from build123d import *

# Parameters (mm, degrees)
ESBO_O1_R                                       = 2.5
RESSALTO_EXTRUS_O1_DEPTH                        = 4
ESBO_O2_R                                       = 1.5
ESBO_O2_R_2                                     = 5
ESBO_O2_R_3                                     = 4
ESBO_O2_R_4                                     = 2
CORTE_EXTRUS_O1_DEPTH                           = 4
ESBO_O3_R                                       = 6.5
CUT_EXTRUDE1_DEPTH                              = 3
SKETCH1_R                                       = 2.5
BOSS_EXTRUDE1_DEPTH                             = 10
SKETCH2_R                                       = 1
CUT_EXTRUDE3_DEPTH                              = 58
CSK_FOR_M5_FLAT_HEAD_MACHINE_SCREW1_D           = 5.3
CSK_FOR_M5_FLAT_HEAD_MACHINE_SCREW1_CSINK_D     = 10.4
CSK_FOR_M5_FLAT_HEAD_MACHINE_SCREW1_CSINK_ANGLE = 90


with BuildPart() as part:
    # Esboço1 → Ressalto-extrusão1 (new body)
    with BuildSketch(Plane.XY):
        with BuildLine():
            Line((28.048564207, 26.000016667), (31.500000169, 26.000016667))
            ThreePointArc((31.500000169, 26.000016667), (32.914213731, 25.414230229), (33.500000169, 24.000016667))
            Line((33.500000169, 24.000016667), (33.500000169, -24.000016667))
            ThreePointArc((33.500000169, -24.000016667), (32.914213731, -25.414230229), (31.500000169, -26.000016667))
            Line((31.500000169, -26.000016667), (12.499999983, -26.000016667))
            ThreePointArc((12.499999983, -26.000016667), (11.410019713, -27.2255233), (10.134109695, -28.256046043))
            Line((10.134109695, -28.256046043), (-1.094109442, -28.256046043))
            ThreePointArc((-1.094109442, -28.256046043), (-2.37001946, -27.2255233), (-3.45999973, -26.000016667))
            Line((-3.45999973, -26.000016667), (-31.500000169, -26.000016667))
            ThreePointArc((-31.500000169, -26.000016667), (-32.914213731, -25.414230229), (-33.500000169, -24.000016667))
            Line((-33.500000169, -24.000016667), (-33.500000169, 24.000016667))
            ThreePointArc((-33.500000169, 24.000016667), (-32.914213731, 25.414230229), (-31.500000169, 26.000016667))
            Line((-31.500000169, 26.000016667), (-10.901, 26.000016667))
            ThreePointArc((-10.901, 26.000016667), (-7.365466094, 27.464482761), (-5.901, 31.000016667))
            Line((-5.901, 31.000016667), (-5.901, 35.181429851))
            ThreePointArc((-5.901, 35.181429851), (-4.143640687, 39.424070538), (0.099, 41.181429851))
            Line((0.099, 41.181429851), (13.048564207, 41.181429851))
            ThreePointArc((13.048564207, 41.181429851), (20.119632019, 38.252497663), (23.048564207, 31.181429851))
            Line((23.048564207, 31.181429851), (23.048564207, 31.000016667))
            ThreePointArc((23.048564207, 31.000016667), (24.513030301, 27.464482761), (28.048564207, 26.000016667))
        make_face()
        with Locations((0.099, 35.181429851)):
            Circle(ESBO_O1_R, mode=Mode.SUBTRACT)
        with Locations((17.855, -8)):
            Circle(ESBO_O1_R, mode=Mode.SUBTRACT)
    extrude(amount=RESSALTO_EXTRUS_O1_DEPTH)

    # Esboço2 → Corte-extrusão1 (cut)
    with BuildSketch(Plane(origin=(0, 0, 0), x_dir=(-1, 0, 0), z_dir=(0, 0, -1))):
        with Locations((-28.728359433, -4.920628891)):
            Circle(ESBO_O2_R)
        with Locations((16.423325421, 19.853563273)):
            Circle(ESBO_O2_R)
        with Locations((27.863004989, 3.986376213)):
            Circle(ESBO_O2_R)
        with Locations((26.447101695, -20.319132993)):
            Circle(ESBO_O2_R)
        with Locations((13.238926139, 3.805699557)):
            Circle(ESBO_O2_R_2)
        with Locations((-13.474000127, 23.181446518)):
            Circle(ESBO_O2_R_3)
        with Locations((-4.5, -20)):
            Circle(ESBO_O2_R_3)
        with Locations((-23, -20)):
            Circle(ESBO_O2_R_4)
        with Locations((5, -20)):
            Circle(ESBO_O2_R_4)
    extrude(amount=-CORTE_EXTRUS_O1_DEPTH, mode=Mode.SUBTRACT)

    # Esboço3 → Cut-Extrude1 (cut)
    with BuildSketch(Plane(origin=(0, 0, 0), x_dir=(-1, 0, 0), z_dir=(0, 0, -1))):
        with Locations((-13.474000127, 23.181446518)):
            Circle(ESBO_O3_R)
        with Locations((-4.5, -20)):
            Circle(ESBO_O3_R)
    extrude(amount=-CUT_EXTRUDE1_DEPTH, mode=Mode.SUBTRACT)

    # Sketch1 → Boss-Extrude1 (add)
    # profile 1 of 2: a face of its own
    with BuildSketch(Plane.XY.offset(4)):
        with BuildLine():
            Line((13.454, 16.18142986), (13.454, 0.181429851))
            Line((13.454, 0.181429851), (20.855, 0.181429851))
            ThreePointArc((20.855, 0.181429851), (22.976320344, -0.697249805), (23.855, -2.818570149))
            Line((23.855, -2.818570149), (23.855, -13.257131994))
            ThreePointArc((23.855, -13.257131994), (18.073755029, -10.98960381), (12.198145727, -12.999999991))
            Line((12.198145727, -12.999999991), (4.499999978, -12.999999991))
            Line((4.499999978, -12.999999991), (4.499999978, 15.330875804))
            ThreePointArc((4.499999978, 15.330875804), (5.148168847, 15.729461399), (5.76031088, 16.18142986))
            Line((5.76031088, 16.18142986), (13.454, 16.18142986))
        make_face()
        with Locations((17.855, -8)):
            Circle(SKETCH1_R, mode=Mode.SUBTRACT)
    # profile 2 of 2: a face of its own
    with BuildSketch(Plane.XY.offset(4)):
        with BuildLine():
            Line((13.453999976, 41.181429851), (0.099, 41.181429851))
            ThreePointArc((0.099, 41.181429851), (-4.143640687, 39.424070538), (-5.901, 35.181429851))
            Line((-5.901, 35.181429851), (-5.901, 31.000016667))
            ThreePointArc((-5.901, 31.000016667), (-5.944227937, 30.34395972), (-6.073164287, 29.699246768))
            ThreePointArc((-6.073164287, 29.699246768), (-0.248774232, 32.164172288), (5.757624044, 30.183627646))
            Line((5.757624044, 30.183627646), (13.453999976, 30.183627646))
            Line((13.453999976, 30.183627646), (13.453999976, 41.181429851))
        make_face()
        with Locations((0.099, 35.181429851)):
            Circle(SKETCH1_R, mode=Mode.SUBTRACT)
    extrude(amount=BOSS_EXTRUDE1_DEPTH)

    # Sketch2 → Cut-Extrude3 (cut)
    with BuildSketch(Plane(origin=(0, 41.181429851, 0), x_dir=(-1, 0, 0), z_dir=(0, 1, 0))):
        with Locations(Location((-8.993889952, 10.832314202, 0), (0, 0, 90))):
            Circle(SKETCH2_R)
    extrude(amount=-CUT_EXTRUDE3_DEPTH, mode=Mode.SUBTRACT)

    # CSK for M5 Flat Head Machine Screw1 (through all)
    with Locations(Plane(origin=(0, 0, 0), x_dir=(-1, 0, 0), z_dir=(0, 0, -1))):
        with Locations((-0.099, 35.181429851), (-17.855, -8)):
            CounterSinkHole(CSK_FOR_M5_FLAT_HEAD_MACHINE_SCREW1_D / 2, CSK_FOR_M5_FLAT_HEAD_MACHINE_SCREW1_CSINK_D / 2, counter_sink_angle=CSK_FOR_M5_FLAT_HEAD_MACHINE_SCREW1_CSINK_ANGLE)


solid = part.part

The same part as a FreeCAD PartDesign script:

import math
import FreeCAD as App
import Part
import Sketcher

V = App.Vector
Q = App.Units.Quantity

doc = App.newDocument("Part")
params = doc.addObject("Spreadsheet::Sheet", "Params")
for row, (alias, value) in enumerate([
    ("sketch1_diameter", "5 mm"),
    ("sketch1_radius", "5 mm"),
    ("sketch1_radius2", "10 mm"),
    ("sketch1_radius3", "6 mm"),
    ("sketch1_radius4", "2 mm"),
    ("pad1_length", "4 mm"),
    ("sketch2_diameter", "3 mm"),
    ("sketch2_diameter2", "10 mm"),
    ("sketch2_diameter3", "8 mm"),
    ("sketch2_diameter4", "4 mm"),
    ("pocket1_length", "4 mm"),
    ("sketch3_diameter", "13 mm"),
    ("pocket2_length", "3 mm"),
    ("sketch4_diameter", "5 mm"),
    ("sketch4_radius", "3 mm"),
    ("sketch4_radius2", "6 mm"),
    ("sketch4_radius3", "5 mm"),
    ("sketch4_height", "16 mm"),
    ("pad2_length", "10 mm"),
    ("sketch5_diameter", "2 mm"),
    ("pocket3_length", "58 mm"),
    ("sketch6_diameter", "5.3 mm"),
    ("hole_diameter", "5.3 mm"),
    ("hole_csink_diameter", "10.4 mm"),
], start=1):
    params.set(f"A{row}", alias)
    params.set(f"B{row}", "=" + value)
    params.setAlias(f"B{row}", alias)

body = doc.addObject("PartDesign::Body", "Body")

sketch1 = doc.addObject("Sketcher::SketchObject", "Sketch")
body.addObject(sketch1)
sketch1.AttachmentSupport = (doc.XY_Plane, [""])
sketch1.MapMode = "FlatFace"
sketch1.addGeometry(Part.LineSegment(V(31.5, 26.000017, 0), V(28.048564, 26.000017, 0)), False)
sketch1.addGeometry(Part.ArcOfCircle(Part.Circle(V(28.048564, 31.000017, 0), V(0, 0, 1), 5), math.radians(180), math.radians(270)), False)
sketch1.addGeometry(Part.LineSegment(V(23.048564, 31.000017, 0), V(23.048564, 31.18143, 0)), False)
sketch1.addGeometry(Part.ArcOfCircle(Part.Circle(V(13.048564, 31.18143, 0), V(0, 0, 1), 10), math.radians(0), math.radians(90)), False)
sketch1.addGeometry(Part.LineSegment(V(13.048564, 41.18143, 0), V(0.099, 41.18143, 0)), False)
sketch1.addGeometry(Part.ArcOfCircle(Part.Circle(V(0.099, 35.18143, 0), V(0, 0, 1), 6), math.radians(90), math.radians(180)), False)
sketch1.addGeometry(Part.LineSegment(V(-5.901, 35.18143, 0), V(-5.901, 31.000017, 0)), False)
sketch1.addGeometry(Part.ArcOfCircle(Part.Circle(V(-10.901, 31.000017, 0), V(0, 0, 1), 5), math.radians(-90), math.radians(0)), False)
sketch1.addGeometry(Part.LineSegment(V(-10.901, 26.000017, 0), V(-31.5, 26.000017, 0)), False)
sketch1.addGeometry(Part.ArcOfCircle(Part.Circle(V(-31.5, 24.000017, 0), V(0, 0, 1), 2), math.radians(90), math.radians(180)), False)
sketch1.addGeometry(Part.LineSegment(V(-33.5, 24.000017, 0), V(-33.5, -24.000017, 0)), False)
sketch1.addGeometry(Part.ArcOfCircle(Part.Circle(V(-31.5, -24.000017, 0), V(0, 0, 1), 2), math.radians(-180), math.radians(-90)), False)
sketch1.addGeometry(Part.LineSegment(V(-31.5, -26.000017, 0), V(-3.46, -26.000017, 0)), False)
sketch1.addGeometry(Part.ArcOfCircle(Part.Circle(V(4.52, -19.999983, 0), V(0, 0, 1), 9.984027), math.radians(-143.061084), math.radians(-124.21564)), False)
sketch1.addGeometry(Part.LineSegment(V(-1.094109, -28.256046, 0), V(10.13411, -28.256046, 0)), False)
sketch1.addGeometry(Part.ArcOfCircle(Part.Circle(V(4.52, -19.999983, 0), V(0, 0, 1), 9.984027), math.radians(-55.78436), math.radians(-36.938916)), False)
sketch1.addGeometry(Part.LineSegment(V(12.5, -26.000017, 0), V(31.5, -26.000017, 0)), False)
sketch1.addGeometry(Part.ArcOfCircle(Part.Circle(V(31.5, -24.000017, 0), V(0, 0, 1), 2), math.radians(-90), math.radians(0)), False)
sketch1.addGeometry(Part.LineSegment(V(33.5, -24.000017, 0), V(33.5, 24.000017, 0)), False)
sketch1.addGeometry(Part.ArcOfCircle(Part.Circle(V(31.5, 24.000017, 0), V(0, 0, 1), 2), math.radians(0), math.radians(90)), False)
sketch1.addGeometry(Part.Circle(V(17.855, -8, 0), V(0, 0, 1), 2.5), False)
sketch1.addGeometry(Part.Circle(V(0.099, 35.18143, 0), V(0, 0, 1), 2.5), False)
sketch1.addConstraint(Sketcher.Constraint("Tangent", 0, 2, 1, 2))
sketch1.addConstraint(Sketcher.Constraint("Tangent", 1, 1, 2, 1))
sketch1.addConstraint(Sketcher.Constraint("Tangent", 2, 2, 3, 1))
sketch1.addConstraint(Sketcher.Constraint("Tangent", 3, 2, 4, 1))
sketch1.addConstraint(Sketcher.Constraint("Tangent", 4, 2, 5, 1))
sketch1.addConstraint(Sketcher.Constraint("Tangent", 5, 2, 6, 1))
sketch1.addConstraint(Sketcher.Constraint("Tangent", 6, 2, 7, 2))
sketch1.addConstraint(Sketcher.Constraint("Tangent", 7, 1, 8, 1))
sketch1.addConstraint(Sketcher.Constraint("Tangent", 8, 2, 9, 1))
sketch1.addConstraint(Sketcher.Constraint("Tangent", 9, 2, 10, 1))
sketch1.addConstraint(Sketcher.Constraint("Tangent", 10, 2, 11, 1))
sketch1.addConstraint(Sketcher.Constraint("Tangent", 11, 2, 12, 1))
sketch1.addConstraint(Sketcher.Constraint("Coincident", 12, 2, 13, 1))
sketch1.addConstraint(Sketcher.Constraint("Coincident", 13, 2, 14, 1))
sketch1.addConstraint(Sketcher.Constraint("Coincident", 14, 2, 15, 1))
sketch1.addConstraint(Sketcher.Constraint("Coincident", 15, 2, 16, 1))
sketch1.addConstraint(Sketcher.Constraint("Tangent", 16, 2, 17, 1))
sketch1.addConstraint(Sketcher.Constraint("Tangent", 17, 2, 18, 1))
sketch1.addConstraint(Sketcher.Constraint("Tangent", 18, 2, 19, 1))
sketch1.addConstraint(Sketcher.Constraint("Tangent", 19, 2, 0, 1))
sketch1.addConstraint(Sketcher.Constraint("Horizontal", 0))
sketch1.addConstraint(Sketcher.Constraint("Vertical", 2))
sketch1.addConstraint(Sketcher.Constraint("Horizontal", 4))
sketch1.addConstraint(Sketcher.Constraint("Vertical", 6))
sketch1.addConstraint(Sketcher.Constraint("Horizontal", 8))
sketch1.addConstraint(Sketcher.Constraint("Vertical", 10))
sketch1.addConstraint(Sketcher.Constraint("Horizontal", 12))
sketch1.addConstraint(Sketcher.Constraint("Horizontal", 14))
sketch1.addConstraint(Sketcher.Constraint("Horizontal", 16))
sketch1.addConstraint(Sketcher.Constraint("Vertical", 18))
sketch1.addConstraint(Sketcher.Constraint("Coincident", 15, 3, 13, 3))
sketch1.addConstraint(Sketcher.Constraint("Coincident", 21, 3, 5, 3))
sketch1.addConstraint(Sketcher.Constraint("Equal", 1, 7))
sketch1.addConstraint(Sketcher.Constraint("Equal", 9, 11))
sketch1.addConstraint(Sketcher.Constraint("Equal", 13, 15))
sketch1.addConstraint(Sketcher.Constraint("Equal", 11, 17))
sketch1.addConstraint(Sketcher.Constraint("Equal", 17, 19))
sketch1.addConstraint(Sketcher.Constraint("Equal", 20, 21))
sketch1.addConstraint(Sketcher.Constraint("Symmetric", 9, 3, 17, 3, -1, 1))
sketch1.addConstraint(Sketcher.Constraint("Horizontal", 1, 3, 7, 3))
sketch1.addConstraint(Sketcher.Constraint("Horizontal", 11, 3, 17, 3))
sketch1.addConstraint(Sketcher.Constraint("Diameter", 20, Q("5 mm")))
sketch1.addConstraint(Sketcher.Constraint("Radius", 1, Q("5 mm")))
sketch1.addConstraint(Sketcher.Constraint("Radius", 3, Q("10 mm")))
sketch1.addConstraint(Sketcher.Constraint("Radius", 5, Q("6 mm")))
sketch1.addConstraint(Sketcher.Constraint("Radius", 9, Q("2 mm")))
sketch1.addConstraint(Sketcher.Constraint("DistanceX", 16, 1, 16, 2, Q("19 mm")))
sketch1.addConstraint(Sketcher.Constraint("DistanceY", 20, 3, -1, 1, Q("8 mm")))
sketch1.addConstraint(Sketcher.Constraint("DistanceY", 13, 3, 7, 3, Q("51 mm")))
sketch1.addConstraint(Sketcher.Constraint("DistanceX", 11, 3, 17, 3, Q("63 mm")))
sketch1.addConstraint(Sketcher.Constraint("DistanceX", 12, 1, 12, 2, Q("28.04 mm")))
sketch1.addConstraint(Sketcher.Constraint("DistanceX", 8, 2, 8, 1, Q("20.599 mm")))
sketch1.addConstraint(Sketcher.Constraint("DistanceX", -1, 1, 20, 3, Q("17.855 mm")))
sketch1.addConstraint(Sketcher.Constraint("Radius", 13, Q("9.984027 mm")))
sketch1.addConstraint(Sketcher.Constraint("DistanceX", 14, 1, 14, 2, Q("11.228219 mm")))
sketch1.addConstraint(Sketcher.Constraint("DistanceX", 0, 2, 0, 1, Q("3.451436 mm")))
sketch1.addConstraint(Sketcher.Constraint("DistanceY", 2, 1, 2, 2, Q("0.181413 mm")))
sketch1.setExpression("Constraints[41]", "Params.sketch1_diameter")
sketch1.setExpression("Constraints[42]", "Params.sketch1_radius")
sketch1.setExpression("Constraints[43]", "Params.sketch1_radius2")
sketch1.setExpression("Constraints[44]", "Params.sketch1_radius3")
sketch1.setExpression("Constraints[45]", "Params.sketch1_radius4")
pad1 = doc.addObject("PartDesign::Pad", "Pad")
body.addObject(pad1)
pad1.Profile = sketch1
pad1.setExpression("Length", "Params.pad1_length")

sketch2 = doc.addObject("Sketcher::SketchObject", "Sketch001")
body.addObject(sketch2)
sketch2.AttachmentSupport = (doc.XY_Plane, [""])
sketch2.MapMode = "FlatFace"
sketch2.addGeometry(Part.Circle(V(28.728359, -4.920629, 0), V(0, 0, 1), 1.5), False)
sketch2.addGeometry(Part.Circle(V(-16.423325, 19.853563, 0), V(0, 0, 1), 1.5), False)
sketch2.addGeometry(Part.Circle(V(-27.863005, 3.986376, 0), V(0, 0, 1), 1.5), False)
sketch2.addGeometry(Part.Circle(V(-26.447102, -20.319133, 0), V(0, 0, 1), 1.5), False)
sketch2.addGeometry(Part.Circle(V(-13.238926, 3.8057, 0), V(0, 0, 1), 5), False)
sketch2.addGeometry(Part.Circle(V(13.474, 23.181447, 0), V(0, 0, 1), 4), False)
sketch2.addGeometry(Part.Circle(V(4.5, -20, 0), V(0, 0, 1), 4), False)
sketch2.addGeometry(Part.Circle(V(23, -20, 0), V(0, 0, 1), 2), False)
sketch2.addGeometry(Part.Circle(V(-5, -20, 0), V(0, 0, 1), 2), False)
sketch2.addConstraint(Sketcher.Constraint("Equal", 0, 1))
sketch2.addConstraint(Sketcher.Constraint("Equal", 1, 2))
sketch2.addConstraint(Sketcher.Constraint("Equal", 2, 3))
sketch2.addConstraint(Sketcher.Constraint("Equal", 5, 6))
sketch2.addConstraint(Sketcher.Constraint("Equal", 7, 8))
sketch2.addConstraint(Sketcher.Constraint("Horizontal", 6, 3, 7, 3))
sketch2.addConstraint(Sketcher.Constraint("Horizontal", 7, 3, 8, 3))
sketch2.addConstraint(Sketcher.Constraint("Diameter", 0, Q("3 mm")))
sketch2.addConstraint(Sketcher.Constraint("Diameter", 4, Q("10 mm")))
sketch2.addConstraint(Sketcher.Constraint("Diameter", 5, Q("8 mm")))
sketch2.addConstraint(Sketcher.Constraint("Diameter", 7, Q("4 mm")))
sketch2.addConstraint(Sketcher.Constraint("DistanceY", 6, 3, -1, 1, Q("20 mm")))
sketch2.addConstraint(Sketcher.Constraint("DistanceX", -1, 1, 7, 3, Q("23 mm")))
sketch2.addConstraint(Sketcher.Constraint("DistanceX", 8, 3, -1, 1, Q("5 mm")))
sketch2.addConstraint(Sketcher.Constraint("DistanceX", -1, 1, 6, 3, Q("4.5 mm")))
sketch2.addConstraint(Sketcher.Constraint("DistanceX", -1, 1, 5, 3, Q("13.474 mm")))
sketch2.addConstraint(Sketcher.Constraint("DistanceX", 3, 3, -1, 1, Q("26.447102 mm")))
sketch2.addConstraint(Sketcher.Constraint("DistanceY", -1, 1, 4, 3, Q("3.8057 mm")))
sketch2.addConstraint(Sketcher.Constraint("DistanceX", 1, 3, 4, 3, Q("3.184399 mm")))
sketch2.addConstraint(Sketcher.Constraint("DistanceX", -1, 1, 0, 3, Q("28.728359 mm")))
sketch2.addConstraint(Sketcher.Constraint("DistanceY", 0, 3, -1, 1, Q("4.920629 mm")))
sketch2.addConstraint(Sketcher.Constraint("DistanceX", 2, 3, 1, 3, Q("11.43968 mm")))
sketch2.addConstraint(Sketcher.Constraint("DistanceY", 3, 3, 2, 3, Q("24.305509 mm")))
sketch2.addConstraint(Sketcher.Constraint("DistanceY", 2, 3, 5, 3, Q("19.19507 mm")))
sketch2.addConstraint(Sketcher.Constraint("DistanceX", 1, 3, -1, 1, Q("16.423325 mm")))
sketch2.addConstraint(Sketcher.Constraint("DistanceY", -1, 1, 1, 3, Q("19.853563 mm")))
sketch2.addConstraint(Sketcher.Constraint("DistanceY", -1, 1, 2, 3, Q("3.986376 mm")))
sketch2.setExpression("Constraints[7]", "Params.sketch2_diameter")
sketch2.setExpression("Constraints[8]", "Params.sketch2_diameter2")
sketch2.setExpression("Constraints[9]", "Params.sketch2_diameter3")
sketch2.setExpression("Constraints[10]", "Params.sketch2_diameter4")
pocket1 = doc.addObject("PartDesign::Pocket", "Pocket")
body.addObject(pocket1)
pocket1.Profile = sketch2
pocket1.setExpression("Length", "Params.pocket1_length")
pocket1.Reversed = True

sketch3 = doc.addObject("Sketcher::SketchObject", "Sketch002")
body.addObject(sketch3)
sketch3.AttachmentSupport = (doc.XY_Plane, [""])
sketch3.MapMode = "FlatFace"
sketch3.addGeometry(Part.Circle(V(13.474, 23.181447, 0), V(0, 0, 1), 6.5), False)
sketch3.addGeometry(Part.Circle(V(4.5, -20, 0), V(0, 0, 1), 6.5), False)
sketch3.addConstraint(Sketcher.Constraint("Equal", 0, 1))
sketch3.addConstraint(Sketcher.Constraint("Diameter", 0, Q("13 mm")))
sketch3.addConstraint(Sketcher.Constraint("DistanceY", 1, 3, -1, 1, Q("20 mm")))
sketch3.addConstraint(Sketcher.Constraint("DistanceX", -1, 1, 1, 3, Q("4.5 mm")))
sketch3.addConstraint(Sketcher.Constraint("DistanceX", -1, 1, 0, 3, Q("13.474 mm")))
sketch3.addConstraint(Sketcher.Constraint("DistanceY", -1, 1, 0, 3, Q("23.181447 mm")))
sketch3.setExpression("Constraints[1]", "Params.sketch3_diameter")
pocket2 = doc.addObject("PartDesign::Pocket", "Pocket001")
body.addObject(pocket2)
pocket2.Profile = sketch3
pocket2.setExpression("Length", "Params.pocket2_length")
pocket2.Reversed = True

sketch4 = doc.addObject("Sketcher::SketchObject", "Sketch003")
body.addObject(sketch4)
sketch4.AttachmentSupport = (doc.XY_Plane, [""])
sketch4.MapMode = "FlatFace"
sketch4.AttachmentOffset = App.Placement(V(0, 0, 4), App.Rotation())
sketch4.addGeometry(Part.LineSegment(V(13.454, 0.18143, 0), V(13.454, 16.18143, 0)), False)
sketch4.addGeometry(Part.LineSegment(V(13.454, 16.18143, 0), V(5.760311, 16.18143, 0)), False)
sketch4.addGeometry(Part.ArcOfCircle(Part.Circle(V(0.119, 23.181447, 0), V(0, 0, 1), 8.990251), math.radians(-60.83636), math.radians(-51.134672)), False)
sketch4.addGeometry(Part.LineSegment(V(4.5, 15.330876, 0), V(4.5, -13, 0)), False)
sketch4.addGeometry(Part.LineSegment(V(4.5, -13, 0), V(12.198146, -13, 0)), False)
sketch4.addGeometry(Part.ArcOfCircle(Part.Circle(V(17.875, -19.999983, 0), V(0, 0, 1), 9.012571), math.radians(48.431299), math.radians(129.0414)), False)
sketch4.addGeometry(Part.LineSegment(V(23.855, -13.257132, 0), V(23.855, -2.81857, 0)), False)
sketch4.addGeometry(Part.ArcOfCircle(Part.Circle(V(20.855, -2.81857, 0), V(0, 0, 1), 3), math.radians(0), math.radians(90)), False)
sketch4.addGeometry(Part.LineSegment(V(20.855, 0.18143, 0), V(13.454, 0.18143, 0)), False)
sketch4.addGeometry(Part.Circle(V(17.855, -8, 0), V(0, 0, 1), 2.5), False)
sketch4.addGeometry(Part.LineSegment(V(13.454, 41.18143, 0), V(0.099, 41.18143, 0)), False)
sketch4.addGeometry(Part.ArcOfCircle(Part.Circle(V(0.099, 35.18143, 0), V(0, 0, 1), 6), math.radians(90), math.radians(180)), False)
sketch4.addGeometry(Part.LineSegment(V(-5.901, 35.18143, 0), V(-5.901, 31.000017, 0)), False)
sketch4.addGeometry(Part.ArcOfCircle(Part.Circle(V(-10.901, 31.000017, 0), V(0, 0, 1), 5), math.radians(-15.079199), math.radians(0)), False)
sketch4.addGeometry(Part.ArcOfCircle(Part.Circle(V(0.119, 23.181447, 0), V(0, 0, 1), 8.990251), math.radians(51.156661), math.radians(133.532374)), False)
sketch4.addGeometry(Part.LineSegment(V(5.757624, 30.183628, 0), V(13.454, 30.183628, 0)), False)
sketch4.addGeometry(Part.LineSegment(V(13.454, 30.183628, 0), V(13.454, 41.18143, 0)), False)
sketch4.addGeometry(Part.Circle(V(0.099, 35.18143, 0), V(0, 0, 1), 2.5), False)
sketch4.addConstraint(Sketcher.Constraint("Coincident", 0, 2, 1, 1))
sketch4.addConstraint(Sketcher.Constraint("Coincident", 1, 2, 2, 2))
sketch4.addConstraint(Sketcher.Constraint("Coincident", 2, 1, 3, 1))
sketch4.addConstraint(Sketcher.Constraint("Coincident", 3, 2, 4, 1))
sketch4.addConstraint(Sketcher.Constraint("Coincident", 4, 2, 5, 2))
sketch4.addConstraint(Sketcher.Constraint("Coincident", 5, 1, 6, 1))
sketch4.addConstraint(Sketcher.Constraint("Tangent", 6, 2, 7, 1))
sketch4.addConstraint(Sketcher.Constraint("Tangent", 7, 2, 8, 1))
sketch4.addConstraint(Sketcher.Constraint("Coincident", 8, 2, 0, 1))
sketch4.addConstraint(Sketcher.Constraint("Tangent", 10, 2, 11, 1))
sketch4.addConstraint(Sketcher.Constraint("Tangent", 11, 2, 12, 1))
sketch4.addConstraint(Sketcher.Constraint("Tangent", 12, 2, 13, 2))
sketch4.addConstraint(Sketcher.Constraint("Coincident", 13, 1, 14, 2))
sketch4.addConstraint(Sketcher.Constraint("Coincident", 14, 1, 15, 1))
sketch4.addConstraint(Sketcher.Constraint("Coincident", 15, 2, 16, 1))
sketch4.addConstraint(Sketcher.Constraint("Coincident", 16, 2, 10, 1))
sketch4.addConstraint(Sketcher.Constraint("Vertical", 0))
sketch4.addConstraint(Sketcher.Constraint("Horizontal", 1))
sketch4.addConstraint(Sketcher.Constraint("Vertical", 3))
sketch4.addConstraint(Sketcher.Constraint("Horizontal", 4))
sketch4.addConstraint(Sketcher.Constraint("Vertical", 6))
sketch4.addConstraint(Sketcher.Constraint("Horizontal", 8))
sketch4.addConstraint(Sketcher.Constraint("Horizontal", 10))
sketch4.addConstraint(Sketcher.Constraint("Vertical", 12))
sketch4.addConstraint(Sketcher.Constraint("Horizontal", 15))
sketch4.addConstraint(Sketcher.Constraint("Vertical", 16))
sketch4.addConstraint(Sketcher.Constraint("Coincident", 14, 3, 2, 3))
sketch4.addConstraint(Sketcher.Constraint("Coincident", 17, 3, 11, 3))
sketch4.addConstraint(Sketcher.Constraint("Equal", 2, 14))
sketch4.addConstraint(Sketcher.Constraint("Equal", 9, 17))
sketch4.addConstraint(Sketcher.Constraint("Vertical", 8, 2, 15, 2))
sketch4.addConstraint(Sketcher.Constraint("Diameter", 9, Q("5 mm")))
sketch4.addConstraint(Sketcher.Constraint("Radius", 7, Q("3 mm")))
sketch4.addConstraint(Sketcher.Constraint("Radius", 11, Q("6 mm")))
sketch4.addConstraint(Sketcher.Constraint("Radius", 13, Q("5 mm")))
sketch4.addConstraint(Sketcher.Constraint("DistanceY", 0, 1, 0, 2, Q("16 mm")))
sketch4.addConstraint(Sketcher.Constraint("DistanceY", 9, 3, -1, 1, Q("8 mm")))
sketch4.addConstraint(Sketcher.Constraint("DistanceY", 3, 2, -1, 1, Q("13 mm")))
sketch4.addConstraint(Sketcher.Constraint("DistanceX", 9, 3, 7, 3, Q("3 mm")))
sketch4.addConstraint(Sketcher.Constraint("DistanceY", 7, 3, 11, 3, Q("38 mm")))
sketch4.addConstraint(Sketcher.Constraint("DistanceY", 5, 3, 13, 3, Q("51 mm")))
sketch4.addConstraint(Sketcher.Constraint("DistanceX", -1, 1, 2, 1, Q("4.5 mm")))
sketch4.addConstraint(Sketcher.Constraint("DistanceX", 8, 2, 8, 1, Q("7.401 mm")))
sketch4.addConstraint(Sketcher.Constraint("DistanceX", 10, 2, 10, 1, Q("13.355 mm")))
sketch4.addConstraint(Sketcher.Constraint("Radius", 2, Q("8.990251 mm")))
sketch4.addConstraint(Sketcher.Constraint("Radius", 5, Q("9.012571 mm")))
sketch4.addConstraint(Sketcher.Constraint("DistanceX", 5, 3, 7, 3, Q("2.98 mm")))
sketch4.addConstraint(Sketcher.Constraint("DistanceX", 11, 3, 2, 3, Q("0.02 mm")))
sketch4.addConstraint(Sketcher.Constraint("DistanceX", -1, 1, 2, 3, Q("0.119 mm")))
sketch4.addConstraint(Sketcher.Constraint("DistanceX", 1, 2, 1, 1, Q("7.693689 mm")))
sketch4.addConstraint(Sketcher.Constraint("DistanceY", 6, 1, 6, 2, Q("10.438562 mm")))
sketch4.addConstraint(Sketcher.Constraint("DistanceX", 4, 1, 4, 2, Q("7.698146 mm")))
sketch4.addConstraint(Sketcher.Constraint("DistanceX", 15, 1, 15, 2, Q("7.696376 mm")))
sketch4.setExpression("Constraints[31]", "Params.sketch4_diameter")
sketch4.setExpression("Constraints[32]", "Params.sketch4_radius")
sketch4.setExpression("Constraints[33]", "Params.sketch4_radius2")
sketch4.setExpression("Constraints[34]", "Params.sketch4_radius3")
sketch4.setExpression("Constraints[35]", "Params.sketch4_height")
pad2 = doc.addObject("PartDesign::Pad", "Pad001")
body.addObject(pad2)
pad2.Profile = sketch4
pad2.setExpression("Length", "Params.pad2_length")

sketch5 = doc.addObject("Sketcher::SketchObject", "Sketch004")
body.addObject(sketch5)
sketch5.AttachmentSupport = (doc.XZ_Plane, [""])
sketch5.MapMode = "FlatFace"
sketch5.AttachmentOffset = App.Placement(V(0, 0, -41.18143), App.Rotation())
sketch5.addGeometry(Part.Circle(V(8.99389, 10.832314, 0), V(0, 0, 1), 1), False)
sketch5.addConstraint(Sketcher.Constraint("Diameter", 0, Q("2 mm")))
sketch5.addConstraint(Sketcher.Constraint("DistanceX", -1, 1, 0, 3, Q("8.99389 mm")))
sketch5.addConstraint(Sketcher.Constraint("DistanceY", -1, 1, 0, 3, Q("10.832314 mm")))
sketch5.setExpression("Constraints[0]", "Params.sketch5_diameter")
pocket3 = doc.addObject("PartDesign::Pocket", "Pocket002")
body.addObject(pocket3)
pocket3.Profile = sketch5
pocket3.setExpression("Length", "Params.pocket3_length")
pocket3.Reversed = True

sketch6 = doc.addObject("Sketcher::SketchObject", "Sketch005")
body.addObject(sketch6)
sketch6.AttachmentSupport = (doc.XY_Plane, [""])
sketch6.MapMode = "FlatFace"
sketch6.addGeometry(Part.Circle(V(0.099, 35.18143, 0), V(0, 0, 1), 2.65), False)
sketch6.addGeometry(Part.Circle(V(17.855, -8, 0), V(0, 0, 1), 2.65), False)
sketch6.addConstraint(Sketcher.Constraint("Equal", 0, 1))
sketch6.addConstraint(Sketcher.Constraint("Diameter", 0, Q("5.3 mm")))
sketch6.addConstraint(Sketcher.Constraint("DistanceY", 1, 3, -1, 1, Q("8 mm")))
sketch6.addConstraint(Sketcher.Constraint("DistanceX", -1, 1, 0, 3, Q("0.099 mm")))
sketch6.addConstraint(Sketcher.Constraint("DistanceX", -1, 1, 1, 3, Q("17.855 mm")))
sketch6.addConstraint(Sketcher.Constraint("DistanceY", -1, 1, 0, 3, Q("35.18143 mm")))
sketch6.setExpression("Constraints[1]", "Params.sketch6_diameter")
doc.recompute()
hole = doc.addObject("PartDesign::Hole", "Hole")
body.addObject(hole)
hole.Profile = sketch6
hole.ThreadType = "None"
hole.setExpression("Diameter", "Params.hole_diameter")
hole.DepthType = "ThroughAll"
hole.HoleCutType = "Countersink"
hole.setExpression("HoleCutDiameter", "Params.hole_csink_diameter")
hole.HoleCutCountersinkAngle = 90
hole.Reversed = True

doc.recompute()
